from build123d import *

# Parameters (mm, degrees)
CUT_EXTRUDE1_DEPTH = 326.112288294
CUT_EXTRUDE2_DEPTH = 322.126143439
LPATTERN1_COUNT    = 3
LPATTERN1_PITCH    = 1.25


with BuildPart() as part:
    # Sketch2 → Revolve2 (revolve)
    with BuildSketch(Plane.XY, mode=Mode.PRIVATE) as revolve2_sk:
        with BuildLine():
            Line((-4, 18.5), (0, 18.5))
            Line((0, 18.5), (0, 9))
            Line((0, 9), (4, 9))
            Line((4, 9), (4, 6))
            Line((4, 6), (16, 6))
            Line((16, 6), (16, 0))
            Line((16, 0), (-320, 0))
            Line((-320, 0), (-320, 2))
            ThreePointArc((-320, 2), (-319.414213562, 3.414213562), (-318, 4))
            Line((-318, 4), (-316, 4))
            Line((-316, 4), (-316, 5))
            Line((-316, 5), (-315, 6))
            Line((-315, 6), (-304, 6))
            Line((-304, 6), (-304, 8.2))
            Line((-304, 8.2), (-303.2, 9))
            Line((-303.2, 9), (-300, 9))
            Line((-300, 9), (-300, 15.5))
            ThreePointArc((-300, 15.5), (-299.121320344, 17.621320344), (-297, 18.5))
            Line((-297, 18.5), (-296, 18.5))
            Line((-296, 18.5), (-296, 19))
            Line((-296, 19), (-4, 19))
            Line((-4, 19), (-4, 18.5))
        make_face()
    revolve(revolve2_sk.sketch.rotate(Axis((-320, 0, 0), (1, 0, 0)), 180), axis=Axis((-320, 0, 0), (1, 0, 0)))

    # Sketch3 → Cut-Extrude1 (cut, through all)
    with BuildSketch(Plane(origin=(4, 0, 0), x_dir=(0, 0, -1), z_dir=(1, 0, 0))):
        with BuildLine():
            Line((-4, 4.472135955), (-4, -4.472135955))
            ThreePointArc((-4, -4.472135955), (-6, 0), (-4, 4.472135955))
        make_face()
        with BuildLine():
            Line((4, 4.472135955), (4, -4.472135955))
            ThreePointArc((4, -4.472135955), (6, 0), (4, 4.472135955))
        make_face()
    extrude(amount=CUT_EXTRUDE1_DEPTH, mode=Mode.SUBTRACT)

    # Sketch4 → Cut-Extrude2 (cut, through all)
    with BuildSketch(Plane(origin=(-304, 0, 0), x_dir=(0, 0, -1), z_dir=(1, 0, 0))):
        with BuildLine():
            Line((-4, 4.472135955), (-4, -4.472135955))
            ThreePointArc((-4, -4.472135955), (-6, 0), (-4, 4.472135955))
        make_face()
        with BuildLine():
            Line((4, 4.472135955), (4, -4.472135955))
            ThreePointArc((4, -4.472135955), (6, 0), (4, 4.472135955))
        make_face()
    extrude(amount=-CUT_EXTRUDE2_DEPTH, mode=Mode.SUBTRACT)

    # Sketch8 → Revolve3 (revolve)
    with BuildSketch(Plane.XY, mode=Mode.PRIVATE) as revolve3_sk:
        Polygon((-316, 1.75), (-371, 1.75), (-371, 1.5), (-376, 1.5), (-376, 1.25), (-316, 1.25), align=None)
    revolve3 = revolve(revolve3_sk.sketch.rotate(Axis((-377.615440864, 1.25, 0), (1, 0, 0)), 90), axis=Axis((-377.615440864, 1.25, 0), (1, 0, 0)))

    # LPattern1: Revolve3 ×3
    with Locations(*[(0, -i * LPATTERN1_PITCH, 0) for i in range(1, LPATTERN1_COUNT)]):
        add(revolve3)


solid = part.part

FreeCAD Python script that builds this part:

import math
import FreeCAD as App
import Part
import Sketcher
Q = App.Units.Quantity


def add_polygon(sketch, points):
    """Adds a closed chain of lines whose ends are joined by coincident constraints."""
    first, n = sketch.GeometryCount, len(points)
    for a, b in zip(points, points[1:] + points[:1]):
        sketch.addGeometry(Part.LineSegment(App.Vector(*a, 0), App.Vector(*b, 0)), False)
    for i in range(n):
        sketch.addConstraint(Sketcher.Constraint("Coincident", first + i, 2, first + (i + 1) % n, 1))

doc = App.newDocument("Part")
body = doc.addObject("PartDesign::Body", "Body")

# Sketch on XY plane
sketch1 = body.newObject("Sketcher::SketchObject", "Sketch")
sketch1.AttachmentSupport = (doc.getObject("XY_Plane"), [""])
sketch1.MapMode = "FlatFace"
sketch1.addGeometry(Part.LineSegment(App.Vector(0, 18.5, 0), App.Vector(-4, 18.5, 0)), False)
sketch1.addGeometry(Part.LineSegment(App.Vector(-4, 18.5, 0), App.Vector(-4, 19, 0)), False)
sketch1.addGeometry(Part.LineSegment(App.Vector(-4, 19, 0), App.Vector(-296, 19, 0)), False)
sketch1.addGeometry(Part.LineSegment(App.Vector(-296, 19, 0), App.Vector(-296, 18.5, 0)), False)
sketch1.addGeometry(Part.LineSegment(App.Vector(-296, 18.5, 0), App.Vector(-297, 18.5, 0)), False)
sketch1.addGeometry(Part.ArcOfCircle(Part.Circle(App.Vector(-297, 15.5, 0), App.Vector(0, 0, 1), 3), math.radians(90), math.radians(180)), False)
sketch1.addGeometry(Part.LineSegment(App.Vector(-300, 15.5, 0), App.Vector(-300, 9, 0)), False)
sketch1.addGeometry(Part.LineSegment(App.Vector(-300, 9, 0), App.Vector(-303.2, 9, 0)), False)
sketch1.addGeometry(Part.LineSegment(App.Vector(-303.2, 9, 0), App.Vector(-304, 8.2, 0)), False)
sketch1.addGeometry(Part.LineSegment(App.Vector(-304, 8.2, 0), App.Vector(-304, 6, 0)), False)
sketch1.addGeometry(Part.LineSegment(App.Vector(-304, 6, 0), App.Vector(-315, 6, 0)), False)
sketch1.addGeometry(Part.LineSegment(App.Vector(-315, 6, 0), App.Vector(-316, 5, 0)), False)
sketch1.addGeometry(Part.LineSegment(App.Vector(-316, 5, 0), App.Vector(-316, 4, 0)), False)
sketch1.addGeometry(Part.LineSegment(App.Vector(-316, 4, 0), App.Vector(-318, 4, 0)), False)
sketch1.addGeometry(Part.ArcOfCircle(Part.Circle(App.Vector(-318, 2, 0), App.Vector(0, 0, 1), 2), math.radians(90), math.radians(180)), False)
sketch1.addGeometry(Part.LineSegment(App.Vector(-320, 2, 0), App.Vector(-320, 0, 0)), False)
sketch1.addGeometry(Part.LineSegment(App.Vector(-320, 0, 0), App.Vector(16, 0, 0)), False)
sketch1.addGeometry(Part.LineSegment(App.Vector(16, 0, 0), App.Vector(16, 6, 0)), False)
sketch1.addGeometry(Part.LineSegment(App.Vector(16, 6, 0), App.Vector(4, 6, 0)), False)
sketch1.addGeometry(Part.LineSegment(App.Vector(4, 6, 0), App.Vector(4, 9, 0)), False)
sketch1.addGeometry(Part.LineSegment(App.Vector(4, 9, 0), App.Vector(0, 9, 0)), False)
sketch1.addGeometry(Part.LineSegment(App.Vector(0, 9, 0), App.Vector(0, 18.5, 0)), False)
sketch1.addConstraint(Sketcher.Constraint("Coincident", 0, 2, 1, 1))
sketch1.addConstraint(Sketcher.Constraint("Coincident", 1, 2, 2, 1))
sketch1.addConstraint(Sketcher.Constraint("Coincident", 2, 2, 3, 1))
sketch1.addConstraint(Sketcher.Constraint("Coincident", 3, 2, 4, 1))
sketch1.addConstraint(Sketcher.Constraint("Tangent", 4, 2, 5, 1))
sketch1.addConstraint(Sketcher.Constraint("Tangent", 5, 2, 6, 1))
sketch1.addConstraint(Sketcher.Constraint("Coincident", 6, 2, 7, 1))
sketch1.addConstraint(Sketcher.Constraint("Coincident", 7, 2, 8, 1))
sketch1.addConstraint(Sketcher.Constraint("Coincident", 8, 2, 9, 1))
sketch1.addConstraint(Sketcher.Constraint("Coincident", 9, 2, 10, 1))
sketch1.addConstraint(Sketcher.Constraint("Coincident", 10, 2, 11, 1))
sketch1.addConstraint(Sketcher.Constraint("Coincident", 11, 2, 12, 1))
sketch1.addConstraint(Sketcher.Constraint("Coincident", 12, 2, 13, 1))
sketch1.addConstraint(Sketcher.Constraint("Tangent", 13, 2, 14, 1))
sketch1.addConstraint(Sketcher.Constraint("Tangent", 14, 2, 15, 1))
sketch1.addConstraint(Sketcher.Constraint("Coincident", 15, 2, 16, 1))
sketch1.addConstraint(Sketcher.Constraint("Coincident", 16, 2, 17, 1))
sketch1.addConstraint(Sketcher.Constraint("Coincident", 17, 2, 18, 1))
sketch1.addConstraint(Sketcher.Constraint("Coincident", 18, 2, 19, 1))
sketch1.addConstraint(Sketcher.Constraint("Coincident", 19, 2, 20, 1))
sketch1.addConstraint(Sketcher.Constraint("Coincident", 20, 2, 21, 1))
sketch1.addConstraint(Sketcher.Constraint("Coincident", 21, 2, 0, 1))
sketch1.addConstraint(Sketcher.Constraint("Horizontal", 0))
sketch1.addConstraint(Sketcher.Constraint("Vertical", 1))
sketch1.addConstraint(Sketcher.Constraint("Horizontal", 2))
sketch1.addConstraint(Sketcher.Constraint("Vertical", 3))
sketch1.addConstraint(Sketcher.Constraint("Horizontal", 4))
sketch1.addConstraint(Sketcher.Constraint("Vertical", 6))
sketch1.addConstraint(Sketcher.Constraint("Horizontal", 7))
sketch1.addConstraint(Sketcher.Constraint("Vertical", 9))
sketch1.addConstraint(Sketcher.Constraint("Horizontal", 10))
sketch1.addConstraint(Sketcher.Constraint("Vertical", 12))
sketch1.addConstraint(Sketcher.Constraint("Horizontal", 13))
sketch1.addConstraint(Sketcher.Constraint("Vertical", 15))
sketch1.addConstraint(Sketcher.Constraint("Horizontal", 16))
sketch1.addConstraint(Sketcher.Constraint("Vertical", 17))
sketch1.addConstraint(Sketcher.Constraint("Horizontal", 18))
sketch1.addConstraint(Sketcher.Constraint("Vertical", 19))
sketch1.addConstraint(Sketcher.Constraint("Horizontal", 20))
sketch1.addConstraint(Sketcher.Constraint("Vertical", 21))
sketch1.addConstraint(Sketcher.Constraint("PointOnObject", 15, 2, -1))
sketch1.addConstraint(Sketcher.Constraint("PointOnObject", 20, 2, -2))
sketch1.addConstraint(Sketcher.Constraint("Parallel", 8, 11))
sketch1.addConstraint(Sketcher.Constraint("Horizontal", 0, 2, 3, 2))
sketch1.addConstraint(Sketcher.Constraint("Horizontal", 10, 2, 17, 2))
sketch1.addConstraint(Sketcher.Constraint("Horizontal", 7, 2, 19, 2))
sketch1.addConstraint(Sketcher.Constraint("Equal", 0, 20))
sketch1.addConstraint(Sketcher.Constraint("Equal", 4, 12))
sketch1.addConstraint(Sketcher.Constraint("Equal", 13, 15))
sketch1.addConstraint(Sketcher.Constraint("Radius", 5, Q("3 mm")))
sketch1.addConstraint(Sketcher.Constraint("Radius", 14, Q("2 mm")))
sketch1.addConstraint(Sketcher.Constraint("DistanceX", 0, 2, 0, 1, Q("4 mm")))
sketch1.addConstraint(Sketcher.Constraint("DistanceX", 2, 2, 2, 1, Q("292 mm")))
sketch1.addConstraint(Sketcher.Constraint("DistanceX", 4, 2, 4, 1, Q("1 mm")))
sketch1.addConstraint(Sketcher.Constraint("DistanceX", 10, 2, 10, 1, Q("11 mm")))
sketch1.addConstraint(Sketcher.Constraint("DistanceX", 13, 2, 13, 1, Q("2 mm")))
sketch1.addConstraint(Sketcher.Constraint("DistanceX", 16, 1, 16, 2, Q("336 mm")))
sketch1.addConstraint(Sketcher.Constraint("DistanceX", 18, 2, 18, 1, Q("12 mm")))
sketch1.addConstraint(Sketcher.Constraint("DistanceY", 17, 1, 17, 2, Q("6 mm")))
sketch1.addConstraint(Sketcher.Constraint("DistanceY", 19, 1, 19, 2, Q("3 mm")))
sketch1.addConstraint(Sketcher.Constraint("Angle", 8, Q("-135 deg")))
sketch1.addConstraint(Sketcher.Constraint("DistanceX", 7, 2, 7, 1, Q("3.2 mm")))
sketch1.addConstraint(Sketcher.Constraint("DistanceY", 1, 1, 1, 2, Q("0.5 mm")))
sketch1.addConstraint(Sketcher.Constraint("DistanceY", 6, 2, 6, 1, Q("6.5 mm")))
revolution = body.newObject("PartDesign::Revolution", "Revolution")
revolution.Profile = sketch1
revolution.ReferenceAxis = (sketch1, ["H_Axis"])
revolution.Angle = 360

# Sketch on YZ plane
sketch2 = body.newObject("Sketcher::SketchObject", "Sketch001")
sketch2.AttachmentSupport = (doc.getObject("YZ_Plane"), [""])
sketch2.MapMode = "FlatFace"
sketch2.AttachmentOffset = App.Placement(App.Vector(0, 0, 4), App.Rotation())
sketch2.addGeometry(Part.LineSegment(App.Vector(-4, 4, 0), App.Vector(4, 4, 0)), False)
sketch2.addGeometry(Part.ArcOfCircle(Part.Circle(App.Vector(0, 0, 0), App.Vector(0, 0, 1), 6), math.radians(42), math.radians(138)), False)
sketch2.addGeometry(Part.LineSegment(App.Vector(4, -4, 0), App.Vector(-4, -4, 0)), False)
sketch2.addGeometry(Part.ArcOfCircle(Part.Circle(App.Vector(0, 0, 0), App.Vector(0, 0, 1), 6), math.radians(-138), math.radians(-42)), False)
sketch2.addConstraint(Sketcher.Constraint("Coincident", 0, 1, 1, 2))
sketch2.addConstraint(Sketcher.Constraint("Coincident", 1, 1, 0, 2))
sketch2.addConstraint(Sketcher.Constraint("Coincident", 2, 1, 3, 2))
sketch2.addConstraint(Sketcher.Constraint("Coincident", 3, 1, 2, 2))
sketch2.addConstraint(Sketcher.Constraint("Horizontal", 0))
sketch2.addConstraint(Sketcher.Constraint("Horizontal", 2))
sketch2.addConstraint(Sketcher.Constraint("Coincident", 1, 3, -1, 1))
sketch2.addConstraint(Sketcher.Constraint("Coincident", 3, 3, -1, 1))
sketch2.addConstraint(Sketcher.Constraint("Equal", 1, 3))
sketch2.addConstraint(Sketcher.Constraint("Vertical", 1, 1, 2, 1))
sketch2.addConstraint(Sketcher.Constraint("Radius", 1, Q("6 mm")))
sketch2.addConstraint(Sketcher.Constraint("DistanceY", -1, 1, 0, 1, Q("4 mm")))
pocket1 = body.newObject("PartDesign::Pocket", "Pocket")
pocket1.Profile = sketch2
pocket1.Type = "ThroughAll"
pocket1.Reversed = True

# Sketch on YZ plane
sketch3 = body.newObject("Sketcher::SketchObject", "Sketch002")
sketch3.AttachmentSupport = (doc.getObject("YZ_Plane"), [""])
sketch3.MapMode = "FlatFace"
sketch3.AttachmentOffset = App.Placement(App.Vector(0, 0, -304), App.Rotation())
sketch3.addGeometry(Part.LineSegment(App.Vector(-4, 4, 0), App.Vector(4, 4, 0)), False)
sketch3.addGeometry(Part.ArcOfCircle(Part.Circle(App.Vector(0, 0, 0), App.Vector(0, 0, 1), 6), math.radians(42), math.radians(138)), False)
sketch3.addGeometry(Part.LineSegment(App.Vector(4, -4, 0), App.Vector(-4, -4, 0)), False)
sketch3.addGeometry(Part.ArcOfCircle(Part.Circle(App.Vector(0, 0, 0), App.Vector(0, 0, 1), 6), math.radians(-138), math.radians(-42)), False)
sketch3.addConstraint(Sketcher.Constraint("Coincident", 0, 1, 1, 2))
sketch3.addConstraint(Sketcher.Constraint("Coincident", 1, 1, 0, 2))
sketch3.addConstraint(Sketcher.Constraint("Coincident", 2, 1, 3, 2))
sketch3.addConstraint(Sketcher.Constraint("Coincident", 3, 1, 2, 2))
sketch3.addConstraint(Sketcher.Constraint("Horizontal", 0))
sketch3.addConstraint(Sketcher.Constraint("Horizontal", 2))
sketch3.addConstraint(Sketcher.Constraint("Coincident", 1, 3, -1, 1))
sketch3.addConstraint(Sketcher.Constraint("Coincident", 3, 3, -1, 1))
sketch3.addConstraint(Sketcher.Constraint("Equal", 1, 3))
sketch3.addConstraint(Sketcher.Constraint("Vertical", 1, 1, 2, 1))
sketch3.addConstraint(Sketcher.Constraint("Radius", 1, Q("6 mm")))
sketch3.addConstraint(Sketcher.Constraint("DistanceY", -1, 1, 0, 1, Q("4 mm")))
pocket2 = body.newObject("PartDesign::Pocket", "Pocket001")
pocket2.Profile = sketch3
pocket2.Type = "ThroughAll"

# Sketch on XY plane
sketch4 = body.newObject("Sketcher::SketchObject", "Sketch003")
sketch4.AttachmentSupport = (doc.getObject("XY_Plane"), [""])
sketch4.MapMode = "FlatFace"
add_polygon(sketch4, [(-316, 1.75), (-371, 1.75), (-371, 1.5), (-376, 1.5), (-376, 1.25), (-316, 1.25)])  # lines 0-5
sketch4.addGeometry(Part.LineSegment(App.Vector(-376, 1.25, 0), App.Vector(-316, 1.25, 0)), True)  # axis
sketch4.addConstraint(Sketcher.Constraint("Horizontal", 0))
sketch4.addConstraint(Sketcher.Constraint("Vertical", 1))
sketch4.addConstraint(Sketcher.Constraint("Horizontal", 2))
sketch4.addConstraint(Sketcher.Constraint("Vertical", 3))
sketch4.addConstraint(Sketcher.Constraint("Horizontal", 4))
sketch4.addConstraint(Sketcher.Constraint("Vertical", 5))
sketch4.addConstraint(Sketcher.Constraint("Horizontal", 6))
sketch4.addConstraint(Sketcher.Constraint("Coincident", 6, 1, 3, 2))
sketch4.addConstraint(Sketcher.Constraint("Vertical", 5, 2, 6, 2))
sketch4.addConstraint(Sketcher.Constraint("Equal", 1, 3))
sketch4.addConstraint(Sketcher.Constraint("DistanceX", 0, 2, 0, 1, Q("55 mm")))
sketch4.addConstraint(Sketcher.Constraint("DistanceX", 2, 2, 2, 1, Q("5 mm")))
sketch4.addConstraint(Sketcher.Constraint("DistanceY", 5, 1, 5, 2, Q("0.5 mm")))
sketch4.addConstraint(Sketcher.Constraint("DistanceX", 0, 2, -1, 1, Q("371 mm")))
sketch4.addConstraint(Sketcher.Constraint("DistanceY", -1, 1, 1, 2, Q("1.5 mm")))
revolution2 = body.newObject("PartDesign::Revolution", "Revolution001")
revolution2.Profile = sketch4
revolution2.ReferenceAxis = (sketch4, ["Axis0"])
revolution2.Angle = 360
doc.recompute()

linearpattern = body.newObject("PartDesign::LinearPattern", "LinearPattern")
linearpattern.Originals = [revolution2]
linearpattern.Direction = (doc.getObject("Y_Axis"), [""])
linearpattern.Mode = "offset"
linearpattern.Offset = 1.25
linearpattern.Occurrences = 3
linearpattern.Reversed = True
body.Tip = linearpattern

doc.recompute()
